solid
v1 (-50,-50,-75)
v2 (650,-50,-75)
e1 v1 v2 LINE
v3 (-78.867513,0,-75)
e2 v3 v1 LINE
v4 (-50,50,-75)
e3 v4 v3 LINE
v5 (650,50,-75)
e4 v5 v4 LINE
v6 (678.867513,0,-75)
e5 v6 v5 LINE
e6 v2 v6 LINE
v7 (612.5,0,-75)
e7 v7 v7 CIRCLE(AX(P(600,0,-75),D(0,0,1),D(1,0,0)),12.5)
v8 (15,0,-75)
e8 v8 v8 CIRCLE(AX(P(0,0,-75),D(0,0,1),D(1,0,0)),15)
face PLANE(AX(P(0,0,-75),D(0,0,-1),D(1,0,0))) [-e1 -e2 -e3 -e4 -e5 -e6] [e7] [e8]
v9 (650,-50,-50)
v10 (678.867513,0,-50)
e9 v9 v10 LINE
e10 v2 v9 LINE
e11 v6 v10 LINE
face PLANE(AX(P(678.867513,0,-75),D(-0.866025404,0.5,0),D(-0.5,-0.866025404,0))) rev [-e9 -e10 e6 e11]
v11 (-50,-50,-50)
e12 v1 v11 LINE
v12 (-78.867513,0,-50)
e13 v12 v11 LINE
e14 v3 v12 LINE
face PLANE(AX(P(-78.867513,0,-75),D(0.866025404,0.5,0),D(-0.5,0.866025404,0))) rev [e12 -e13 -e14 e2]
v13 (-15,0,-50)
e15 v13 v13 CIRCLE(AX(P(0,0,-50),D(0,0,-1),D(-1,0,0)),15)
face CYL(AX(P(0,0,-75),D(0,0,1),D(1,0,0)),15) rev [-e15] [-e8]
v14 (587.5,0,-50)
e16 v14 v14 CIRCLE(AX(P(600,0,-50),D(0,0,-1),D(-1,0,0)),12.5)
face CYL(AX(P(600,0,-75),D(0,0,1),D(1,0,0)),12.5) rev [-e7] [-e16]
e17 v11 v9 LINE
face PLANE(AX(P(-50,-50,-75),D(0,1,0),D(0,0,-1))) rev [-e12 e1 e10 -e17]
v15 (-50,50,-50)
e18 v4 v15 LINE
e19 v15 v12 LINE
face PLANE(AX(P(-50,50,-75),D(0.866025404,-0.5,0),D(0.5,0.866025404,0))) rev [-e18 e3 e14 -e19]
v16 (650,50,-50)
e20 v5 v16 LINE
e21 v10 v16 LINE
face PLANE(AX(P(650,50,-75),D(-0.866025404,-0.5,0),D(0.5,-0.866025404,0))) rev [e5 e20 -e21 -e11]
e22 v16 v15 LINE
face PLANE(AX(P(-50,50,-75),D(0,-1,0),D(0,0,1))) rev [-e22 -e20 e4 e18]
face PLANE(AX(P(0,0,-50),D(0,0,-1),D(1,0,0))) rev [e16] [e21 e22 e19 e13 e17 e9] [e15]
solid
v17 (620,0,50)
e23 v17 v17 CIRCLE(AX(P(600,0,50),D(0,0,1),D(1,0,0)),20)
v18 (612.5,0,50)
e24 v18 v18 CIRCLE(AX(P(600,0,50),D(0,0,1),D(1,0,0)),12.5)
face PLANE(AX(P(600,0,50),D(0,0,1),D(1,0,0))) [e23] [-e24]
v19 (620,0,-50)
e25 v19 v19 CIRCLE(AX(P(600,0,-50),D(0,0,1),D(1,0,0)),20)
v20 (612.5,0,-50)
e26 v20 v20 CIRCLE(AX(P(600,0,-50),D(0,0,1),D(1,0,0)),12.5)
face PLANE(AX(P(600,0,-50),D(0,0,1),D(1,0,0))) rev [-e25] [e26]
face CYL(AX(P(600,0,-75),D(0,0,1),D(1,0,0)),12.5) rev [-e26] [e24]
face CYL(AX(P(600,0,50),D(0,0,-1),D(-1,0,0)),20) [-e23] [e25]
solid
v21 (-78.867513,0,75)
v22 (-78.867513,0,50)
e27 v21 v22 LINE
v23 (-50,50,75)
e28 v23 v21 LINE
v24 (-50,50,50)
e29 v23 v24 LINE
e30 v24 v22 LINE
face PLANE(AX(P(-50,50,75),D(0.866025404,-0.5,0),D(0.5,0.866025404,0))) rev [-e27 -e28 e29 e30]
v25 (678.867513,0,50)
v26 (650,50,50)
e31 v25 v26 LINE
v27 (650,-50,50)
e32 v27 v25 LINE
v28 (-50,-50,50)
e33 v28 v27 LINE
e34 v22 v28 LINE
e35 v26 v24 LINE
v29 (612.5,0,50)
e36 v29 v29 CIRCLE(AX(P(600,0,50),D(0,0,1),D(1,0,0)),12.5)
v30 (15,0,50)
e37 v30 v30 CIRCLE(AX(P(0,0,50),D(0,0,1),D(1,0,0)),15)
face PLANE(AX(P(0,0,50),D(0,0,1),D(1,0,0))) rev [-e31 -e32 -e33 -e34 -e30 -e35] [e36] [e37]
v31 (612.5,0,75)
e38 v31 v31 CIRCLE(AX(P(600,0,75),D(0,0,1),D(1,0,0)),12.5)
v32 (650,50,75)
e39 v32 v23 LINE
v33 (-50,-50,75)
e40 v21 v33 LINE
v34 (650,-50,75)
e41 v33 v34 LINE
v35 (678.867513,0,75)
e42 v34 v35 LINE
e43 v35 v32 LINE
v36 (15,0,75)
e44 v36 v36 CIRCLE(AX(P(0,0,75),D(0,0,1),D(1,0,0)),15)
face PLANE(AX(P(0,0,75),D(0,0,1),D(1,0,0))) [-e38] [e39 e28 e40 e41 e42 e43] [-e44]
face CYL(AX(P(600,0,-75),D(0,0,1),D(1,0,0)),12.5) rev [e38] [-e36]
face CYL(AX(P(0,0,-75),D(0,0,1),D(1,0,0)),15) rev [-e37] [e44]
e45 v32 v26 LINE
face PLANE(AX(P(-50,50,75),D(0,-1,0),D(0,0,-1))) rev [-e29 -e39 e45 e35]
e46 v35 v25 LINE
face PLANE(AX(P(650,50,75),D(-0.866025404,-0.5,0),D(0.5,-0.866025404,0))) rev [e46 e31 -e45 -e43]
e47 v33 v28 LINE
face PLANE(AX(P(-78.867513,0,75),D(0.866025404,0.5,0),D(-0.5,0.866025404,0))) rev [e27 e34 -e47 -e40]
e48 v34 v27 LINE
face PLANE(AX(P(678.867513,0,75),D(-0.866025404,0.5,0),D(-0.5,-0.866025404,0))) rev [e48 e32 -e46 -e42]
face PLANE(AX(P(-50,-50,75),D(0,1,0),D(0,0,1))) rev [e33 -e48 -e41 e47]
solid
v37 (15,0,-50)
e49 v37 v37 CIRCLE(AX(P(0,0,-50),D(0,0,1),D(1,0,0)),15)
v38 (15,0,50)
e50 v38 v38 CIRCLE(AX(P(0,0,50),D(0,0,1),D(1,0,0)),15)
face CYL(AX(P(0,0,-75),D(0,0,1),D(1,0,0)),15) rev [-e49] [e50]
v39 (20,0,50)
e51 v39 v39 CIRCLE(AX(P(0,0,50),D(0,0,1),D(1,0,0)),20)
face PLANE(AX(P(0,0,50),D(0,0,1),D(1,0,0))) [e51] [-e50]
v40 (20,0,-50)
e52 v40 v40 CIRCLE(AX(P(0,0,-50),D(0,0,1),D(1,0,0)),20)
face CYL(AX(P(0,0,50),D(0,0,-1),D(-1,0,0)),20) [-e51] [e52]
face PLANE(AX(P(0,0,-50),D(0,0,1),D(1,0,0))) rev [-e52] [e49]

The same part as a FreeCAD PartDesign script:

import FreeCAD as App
import Part
import Sketcher
from FreeCAD import Vector
Q = App.Units.Quantity


def add_polygon(sketch, points):
    """Adds a closed chain of lines whose ends are joined by coincident constraints."""
    first, n = sketch.GeometryCount, len(points)
    for a, b in zip(points, points[1:] + points[:1]):
        sketch.addGeometry(Part.LineSegment(App.Vector(*a, 0), App.Vector(*b, 0)), False)
    for i in range(n):
        sketch.addConstraint(Sketcher.Constraint("Coincident", first + i, 2, first + (i + 1) % n, 1))

doc = App.newDocument("Part")
body = doc.addObject("PartDesign::Body", "Body")

# Sketch on XY plane
sketch1 = body.newObject("Sketcher::SketchObject", "Sketch")
sketch1.AttachmentSupport = (doc.getObject("XY_Plane"), [""])
sketch1.MapMode = "FlatFace"
sketch1.addGeometry(Part.Circle(Vector(0, 0, 0), Vector(0, 0, 1), 20), False)
sketch1.addConstraint(Sketcher.Constraint("Coincident", 0, 3, -1, 1))
sketch1.addConstraint(Sketcher.Constraint("Diameter", 0, 40.0))
pad1 = body.newObject("PartDesign::Pad", "Pad")
pad1.Profile = sketch1
pad1.Length = 100
pad1.Midplane = True
body2 = doc.addObject("PartDesign::Body", "Body001")

# Sketch on XY plane
sketch2 = body2.newObject("Sketcher::SketchObject", "Sketch001")
sketch2.AttachmentSupport = (doc.getObject("XY_Plane001"), [""])
sketch2.MapMode = "FlatFace"
sketch2.addGeometry(Part.Circle(Vector(600, 0, 0), Vector(0, 0, 1), 20), False)
sketch2.addConstraint(Sketcher.Constraint("PointOnObject", 0, 3, -1))
sketch2.addConstraint(Sketcher.Constraint("Diameter", 0, 40.0))
sketch2.addConstraint(Sketcher.Constraint("DistanceX", -1, 1, 0, 3, 600.0))
pad2 = body2.newObject("PartDesign::Pad", "Pad001")
pad2.Profile = sketch2
pad2.Length = 100
pad2.Midplane = True
body3 = doc.addObject("PartDesign::Body", "Body002")

# Sketch on XY plane
sketch3 = body3.newObject("Sketcher::SketchObject", "Sketch002")
sketch3.AttachmentSupport = (doc.getObject("XY_Plane002"), [""])
sketch3.MapMode = "FlatFace"
sketch3.AttachmentOffset = App.Placement(Vector(0, 0, 50), App.Rotation())
add_polygon(sketch3, [(-50, 50), (-79, 0), (-50, -50), (650, -50), (679, 0), (650, 50)])  # lines 0-5
sketch3.addConstraint(Sketcher.Constraint("Horizontal", 2))
sketch3.addConstraint(Sketcher.Constraint("Horizontal", 5))
sketch3.addConstraint(Sketcher.Constraint("Symmetric", 2, 2, 4, 2, -1))
sketch3.addConstraint(Sketcher.Constraint("PointOnObject", 0, 2, -1))
sketch3.addConstraint(Sketcher.Constraint("PointOnObject", 3, 2, -1))
sketch3.addConstraint(Sketcher.Constraint("Parallel", 0, 3))
sketch3.addConstraint(Sketcher.Constraint("Parallel", 1, 4))
sketch3.addConstraint(Sketcher.Constraint("DistanceX", 2, 1, 2, 2, 700.0))
sketch3.addConstraint(Sketcher.Constraint("Angle", 0, Q("-120 deg")))
sketch3.addConstraint(Sketcher.Constraint("DistanceX", 1, 2, -1, 1, 50.0))
sketch3.addConstraint(Sketcher.Constraint("DistanceY", 1, 2, -1, 1, 50.0))
pad3 = body3.newObject("PartDesign::Pad", "Pad002")
pad3.Profile = sketch3
pad3.Length = 25
body4 = doc.addObject("PartDesign::Body", "Body003")
doc.recompute()

mirroring = doc.addObject("Part::Mirroring", "Mirroring")
mirroring.Source = body3
mirroring.Base = Vector(0, 0, 0)
mirroring.Normal = Vector(0, 0, 1)
body4.BaseFeature = mirroring
doc.recompute()
body5 = doc.addObject("PartDesign::Body", "Body004")
body5.AllowCompound = True

# Sketch on XY plane
sketch4 = body5.newObject("Sketcher::SketchObject", "Sketch003")
sketch4.AttachmentSupport = (doc.getObject("XY_Plane004"), [""])
sketch4.MapMode = "FlatFace"
sketch4.AttachmentOffset = App.Placement(Vector(0, 0, 75), App.Rotation())
sketch4.addGeometry(Part.Circle(Vector(0, 0, 0), Vector(0, 0, 1), 15), False)
sketch4.addGeometry(Part.Circle(Vector(700, 0, 0), Vector(0, 0, 1), 15), False)
sketch4.addConstraint(Sketcher.Constraint("Coincident", 0, 3, -1, 1))
sketch4.addConstraint(Sketcher.Constraint("Equal", 0, 1))
sketch4.addConstraint(Sketcher.Constraint("PointOnObject", 1, 3, -1))
sketch4.addConstraint(Sketcher.Constraint("Diameter", 0, 30.0))
sketch4.addConstraint(Sketcher.Constraint("DistanceX", -1, 1, 1, 3, 700.0))
pad4 = body5.newObject("PartDesign::Pad", "Pad003")
pad4.Profile = sketch4
pad4.Length = 698.037374
pad4.Reversed = True
doc.recompute()

body6 = doc.addObject("PartDesign::Body", "Body005")
body6.BaseFeature = body5
boolean = body.newObject("PartDesign::Boolean", "Boolean")
boolean.Type = "Cut"
boolean.addObjects([body6])
doc.recompute()

body7 = doc.addObject("PartDesign::Body", "Body006")
body7.BaseFeature = body5
boolean2 = body3.newObject("PartDesign::Boolean", "Boolean001")
boolean2.Type = "Cut"
boolean2.addObjects([body7])
doc.recompute()

boolean3 = body4.newObject("PartDesign::Boolean", "Boolean002")
boolean3.Type = "Cut"
boolean3.addObjects([body5])
body8 = doc.addObject("PartDesign::Body", "Body007")

# Sketch on XY plane
sketch5 = body8.newObject("Sketcher::SketchObject", "Sketch004")
sketch5.AttachmentSupport = (doc.getObject("XY_Plane007"), [""])
sketch5.MapMode = "FlatFace"
sketch5.AttachmentOffset = App.Placement(Vector(0, 0, 75), App.Rotation())
sketch5.addGeometry(Part.Circle(Vector(600, 0, 0), Vector(0, 0, 1), 12), False)
sketch5.addConstraint(Sketcher.Constraint("PointOnObject", 0, 3, -1))
sketch5.addConstraint(Sketcher.Constraint("Diameter", 0, 25.0))
sketch5.addConstraint(Sketcher.Constraint("DistanceX", -1, 1, 0, 3, 600.0))
pad5 = body8.newObject("PartDesign::Pad", "Pad004")
pad5.Profile = sketch5
pad5.Length = 698.037374
pad5.Reversed = True
doc.recompute()

body9 = doc.addObject("PartDesign::Body", "Body008")
body9.BaseFeature = body8
boolean4 = body2.newObject("PartDesign::Boolean", "Boolean003")
boolean4.Type = "Cut"
boolean4.addObjects([body9])
doc.recompute()

body10 = doc.addObject("PartDesign::Body", "Body009")
body10.BaseFeature = body8
boolean5 = body3.newObject("PartDesign::Boolean", "Boolean004")
boolean5.Type = "Cut"
boolean5.addObjects([body10])
doc.recompute()

boolean6 = body4.newObject("PartDesign::Boolean", "Boolean005")
boolean6.Type = "Cut"
boolean6.addObjects([body8])
mirroring.Visibility = False

doc.recompute()
